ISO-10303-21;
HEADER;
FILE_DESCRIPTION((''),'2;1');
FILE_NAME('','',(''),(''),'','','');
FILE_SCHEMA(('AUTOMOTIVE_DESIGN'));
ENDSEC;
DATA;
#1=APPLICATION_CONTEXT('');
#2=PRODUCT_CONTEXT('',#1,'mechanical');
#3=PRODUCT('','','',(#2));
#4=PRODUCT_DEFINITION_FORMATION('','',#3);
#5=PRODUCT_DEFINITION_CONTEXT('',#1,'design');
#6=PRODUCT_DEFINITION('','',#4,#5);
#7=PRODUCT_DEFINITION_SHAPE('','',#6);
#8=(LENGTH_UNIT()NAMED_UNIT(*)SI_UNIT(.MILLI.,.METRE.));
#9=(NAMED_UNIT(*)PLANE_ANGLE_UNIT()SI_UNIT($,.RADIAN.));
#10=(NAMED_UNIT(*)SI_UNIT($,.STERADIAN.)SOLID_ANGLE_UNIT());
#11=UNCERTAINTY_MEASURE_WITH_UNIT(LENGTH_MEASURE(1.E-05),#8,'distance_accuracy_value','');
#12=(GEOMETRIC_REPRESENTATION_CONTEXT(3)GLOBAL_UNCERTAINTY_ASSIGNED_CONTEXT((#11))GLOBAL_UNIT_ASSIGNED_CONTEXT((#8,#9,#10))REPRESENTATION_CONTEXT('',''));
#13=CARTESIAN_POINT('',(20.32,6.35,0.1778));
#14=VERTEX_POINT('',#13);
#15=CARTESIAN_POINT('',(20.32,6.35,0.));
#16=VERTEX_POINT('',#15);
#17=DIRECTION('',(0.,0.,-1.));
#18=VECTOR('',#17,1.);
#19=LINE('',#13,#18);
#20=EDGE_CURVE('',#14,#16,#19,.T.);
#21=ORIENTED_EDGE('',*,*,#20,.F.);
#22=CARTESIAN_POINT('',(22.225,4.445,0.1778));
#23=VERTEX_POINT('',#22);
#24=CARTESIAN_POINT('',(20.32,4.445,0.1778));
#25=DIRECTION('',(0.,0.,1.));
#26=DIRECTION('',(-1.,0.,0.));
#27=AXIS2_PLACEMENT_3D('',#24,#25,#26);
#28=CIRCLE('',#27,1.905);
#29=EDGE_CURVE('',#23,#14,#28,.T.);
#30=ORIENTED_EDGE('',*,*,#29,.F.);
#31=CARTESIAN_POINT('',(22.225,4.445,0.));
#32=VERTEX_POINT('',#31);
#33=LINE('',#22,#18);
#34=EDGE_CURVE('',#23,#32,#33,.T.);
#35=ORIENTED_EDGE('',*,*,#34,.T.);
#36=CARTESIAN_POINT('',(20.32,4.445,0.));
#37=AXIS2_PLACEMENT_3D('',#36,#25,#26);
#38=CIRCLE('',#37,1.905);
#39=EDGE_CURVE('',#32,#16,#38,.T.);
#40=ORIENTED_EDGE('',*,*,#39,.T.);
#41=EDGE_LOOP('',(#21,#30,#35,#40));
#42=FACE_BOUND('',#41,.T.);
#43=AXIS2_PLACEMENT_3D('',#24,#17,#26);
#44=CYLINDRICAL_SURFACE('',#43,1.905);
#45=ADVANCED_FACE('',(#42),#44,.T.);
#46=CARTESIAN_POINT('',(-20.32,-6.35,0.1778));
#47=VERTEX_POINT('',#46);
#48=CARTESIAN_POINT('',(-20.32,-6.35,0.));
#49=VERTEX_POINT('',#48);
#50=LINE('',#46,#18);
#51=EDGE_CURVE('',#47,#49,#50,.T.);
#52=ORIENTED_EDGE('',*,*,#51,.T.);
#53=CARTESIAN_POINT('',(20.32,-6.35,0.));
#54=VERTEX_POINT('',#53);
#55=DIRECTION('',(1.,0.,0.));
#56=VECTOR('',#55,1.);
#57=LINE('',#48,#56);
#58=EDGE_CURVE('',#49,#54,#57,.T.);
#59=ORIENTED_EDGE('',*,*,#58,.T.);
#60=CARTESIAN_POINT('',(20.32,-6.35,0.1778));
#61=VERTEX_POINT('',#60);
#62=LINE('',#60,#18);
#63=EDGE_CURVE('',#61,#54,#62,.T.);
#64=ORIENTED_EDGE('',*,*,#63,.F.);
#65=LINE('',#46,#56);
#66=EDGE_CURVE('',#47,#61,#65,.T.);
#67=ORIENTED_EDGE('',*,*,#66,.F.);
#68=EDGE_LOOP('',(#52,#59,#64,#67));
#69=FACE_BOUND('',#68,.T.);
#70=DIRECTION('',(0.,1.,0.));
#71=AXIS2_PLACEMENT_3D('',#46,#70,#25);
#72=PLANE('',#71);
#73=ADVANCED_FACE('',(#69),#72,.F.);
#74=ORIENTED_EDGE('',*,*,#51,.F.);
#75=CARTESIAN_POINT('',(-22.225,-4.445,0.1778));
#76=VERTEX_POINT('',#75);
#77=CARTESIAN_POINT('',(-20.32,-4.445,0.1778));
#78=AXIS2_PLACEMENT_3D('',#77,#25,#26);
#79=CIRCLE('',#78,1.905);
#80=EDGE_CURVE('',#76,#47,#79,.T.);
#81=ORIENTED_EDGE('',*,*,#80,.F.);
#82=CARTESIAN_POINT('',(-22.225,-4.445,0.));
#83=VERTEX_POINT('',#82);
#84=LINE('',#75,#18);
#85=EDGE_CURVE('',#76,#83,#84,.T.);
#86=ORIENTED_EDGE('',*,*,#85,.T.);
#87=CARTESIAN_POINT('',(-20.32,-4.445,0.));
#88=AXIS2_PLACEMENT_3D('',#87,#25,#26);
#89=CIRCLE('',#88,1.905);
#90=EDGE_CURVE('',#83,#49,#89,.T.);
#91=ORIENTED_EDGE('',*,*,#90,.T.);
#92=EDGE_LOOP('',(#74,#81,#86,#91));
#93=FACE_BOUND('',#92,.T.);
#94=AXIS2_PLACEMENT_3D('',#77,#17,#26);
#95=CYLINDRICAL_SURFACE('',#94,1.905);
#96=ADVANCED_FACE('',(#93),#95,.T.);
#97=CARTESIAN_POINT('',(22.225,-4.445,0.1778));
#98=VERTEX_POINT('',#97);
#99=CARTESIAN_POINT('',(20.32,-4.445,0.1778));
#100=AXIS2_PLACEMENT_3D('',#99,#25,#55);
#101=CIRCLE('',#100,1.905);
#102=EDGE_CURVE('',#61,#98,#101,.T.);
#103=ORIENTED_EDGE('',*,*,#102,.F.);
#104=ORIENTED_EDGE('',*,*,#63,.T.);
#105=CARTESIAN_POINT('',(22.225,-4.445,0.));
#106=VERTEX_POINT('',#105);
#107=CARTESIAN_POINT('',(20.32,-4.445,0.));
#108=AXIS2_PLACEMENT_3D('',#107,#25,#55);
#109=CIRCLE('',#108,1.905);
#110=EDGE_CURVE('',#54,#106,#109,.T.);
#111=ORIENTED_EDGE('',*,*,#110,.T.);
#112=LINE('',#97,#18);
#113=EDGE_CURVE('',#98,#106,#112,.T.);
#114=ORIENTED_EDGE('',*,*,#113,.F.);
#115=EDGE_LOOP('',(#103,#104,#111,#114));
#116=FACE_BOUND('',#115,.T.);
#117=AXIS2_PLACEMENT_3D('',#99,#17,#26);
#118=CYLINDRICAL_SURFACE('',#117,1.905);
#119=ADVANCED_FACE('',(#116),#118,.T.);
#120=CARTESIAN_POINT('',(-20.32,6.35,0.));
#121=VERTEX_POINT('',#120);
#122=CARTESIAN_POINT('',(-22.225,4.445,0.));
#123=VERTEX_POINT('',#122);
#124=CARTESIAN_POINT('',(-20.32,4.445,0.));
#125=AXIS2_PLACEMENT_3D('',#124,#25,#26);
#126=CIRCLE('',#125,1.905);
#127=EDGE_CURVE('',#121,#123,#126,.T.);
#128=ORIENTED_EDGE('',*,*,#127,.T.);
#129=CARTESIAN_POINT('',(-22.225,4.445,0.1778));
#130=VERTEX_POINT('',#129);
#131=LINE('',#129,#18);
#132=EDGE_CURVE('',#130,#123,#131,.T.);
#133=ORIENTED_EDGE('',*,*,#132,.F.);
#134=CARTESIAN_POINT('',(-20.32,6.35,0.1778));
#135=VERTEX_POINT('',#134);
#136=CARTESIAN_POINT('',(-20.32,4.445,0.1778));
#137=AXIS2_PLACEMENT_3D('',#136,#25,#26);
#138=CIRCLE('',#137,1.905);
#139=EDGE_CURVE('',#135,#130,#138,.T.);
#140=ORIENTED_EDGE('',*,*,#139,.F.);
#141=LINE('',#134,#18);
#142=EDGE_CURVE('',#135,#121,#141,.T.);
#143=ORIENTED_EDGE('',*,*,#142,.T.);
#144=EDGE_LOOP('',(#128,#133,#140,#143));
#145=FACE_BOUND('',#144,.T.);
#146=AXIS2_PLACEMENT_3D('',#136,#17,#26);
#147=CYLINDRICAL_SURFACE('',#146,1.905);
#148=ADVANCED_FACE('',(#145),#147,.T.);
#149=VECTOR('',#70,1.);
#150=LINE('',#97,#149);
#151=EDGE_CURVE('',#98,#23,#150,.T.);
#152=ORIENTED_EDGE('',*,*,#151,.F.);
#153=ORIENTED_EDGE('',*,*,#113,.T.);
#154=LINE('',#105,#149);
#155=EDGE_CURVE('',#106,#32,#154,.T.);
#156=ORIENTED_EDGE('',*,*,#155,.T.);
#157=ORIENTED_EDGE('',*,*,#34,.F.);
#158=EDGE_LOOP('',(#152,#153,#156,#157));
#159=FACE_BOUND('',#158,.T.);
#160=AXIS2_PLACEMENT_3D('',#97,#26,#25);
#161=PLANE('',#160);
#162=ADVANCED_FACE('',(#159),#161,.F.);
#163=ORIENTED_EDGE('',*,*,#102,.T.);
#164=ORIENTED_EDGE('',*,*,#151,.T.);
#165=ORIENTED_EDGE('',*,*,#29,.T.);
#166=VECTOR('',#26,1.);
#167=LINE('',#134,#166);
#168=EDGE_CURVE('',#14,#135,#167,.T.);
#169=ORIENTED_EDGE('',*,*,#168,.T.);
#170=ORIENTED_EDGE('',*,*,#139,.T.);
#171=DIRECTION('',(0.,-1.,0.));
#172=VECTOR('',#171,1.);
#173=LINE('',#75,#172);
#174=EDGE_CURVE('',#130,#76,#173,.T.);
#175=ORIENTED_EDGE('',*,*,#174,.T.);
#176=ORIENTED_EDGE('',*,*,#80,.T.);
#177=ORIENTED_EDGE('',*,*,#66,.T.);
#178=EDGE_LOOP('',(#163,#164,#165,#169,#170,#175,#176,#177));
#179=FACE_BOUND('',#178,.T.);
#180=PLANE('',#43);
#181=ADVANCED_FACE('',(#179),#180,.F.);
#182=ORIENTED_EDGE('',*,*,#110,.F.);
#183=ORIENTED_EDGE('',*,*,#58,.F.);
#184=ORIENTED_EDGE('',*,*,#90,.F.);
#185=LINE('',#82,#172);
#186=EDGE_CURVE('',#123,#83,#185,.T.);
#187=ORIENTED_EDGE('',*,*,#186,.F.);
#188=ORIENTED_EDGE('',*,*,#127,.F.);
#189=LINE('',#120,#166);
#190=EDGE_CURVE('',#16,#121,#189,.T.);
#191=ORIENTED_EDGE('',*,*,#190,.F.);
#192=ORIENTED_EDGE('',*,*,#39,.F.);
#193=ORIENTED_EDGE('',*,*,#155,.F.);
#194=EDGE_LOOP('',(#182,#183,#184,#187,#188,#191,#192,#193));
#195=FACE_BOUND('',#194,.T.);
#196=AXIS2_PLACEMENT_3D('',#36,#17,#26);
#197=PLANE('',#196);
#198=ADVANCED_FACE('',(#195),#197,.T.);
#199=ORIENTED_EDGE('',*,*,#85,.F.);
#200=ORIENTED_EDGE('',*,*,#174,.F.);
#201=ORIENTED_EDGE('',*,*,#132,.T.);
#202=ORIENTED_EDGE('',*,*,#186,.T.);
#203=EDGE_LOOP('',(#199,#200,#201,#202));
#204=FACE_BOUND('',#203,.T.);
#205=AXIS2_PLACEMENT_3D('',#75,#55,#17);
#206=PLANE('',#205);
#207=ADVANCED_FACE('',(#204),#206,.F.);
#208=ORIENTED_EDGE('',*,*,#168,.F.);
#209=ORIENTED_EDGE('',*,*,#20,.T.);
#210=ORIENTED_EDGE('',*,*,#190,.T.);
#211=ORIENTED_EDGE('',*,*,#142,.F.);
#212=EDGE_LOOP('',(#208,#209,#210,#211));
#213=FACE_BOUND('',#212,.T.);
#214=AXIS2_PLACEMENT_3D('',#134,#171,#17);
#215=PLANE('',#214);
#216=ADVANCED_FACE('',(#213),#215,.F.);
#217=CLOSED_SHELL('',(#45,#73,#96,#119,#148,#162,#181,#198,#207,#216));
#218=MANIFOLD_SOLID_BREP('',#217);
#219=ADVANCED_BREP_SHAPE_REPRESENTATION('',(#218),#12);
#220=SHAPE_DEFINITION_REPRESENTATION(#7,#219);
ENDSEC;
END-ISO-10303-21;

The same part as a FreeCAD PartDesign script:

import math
import FreeCAD as App
import Part
import Sketcher
from FreeCAD import Vector
Q = App.Units.Quantity

doc = App.newDocument("Part")
body = doc.addObject("PartDesign::Body", "Body")

# Sketch on XY plane
sketch1 = doc.addObject("Sketcher::SketchObject", "Sketch")
body.addObject(sketch1)
sketch1.AttachmentSupport = (doc.XY_Plane, [""])
sketch1.MapMode = "FlatFace"
sketch1.addGeometry(Part.LineSegment(Vector(-20.3, -6.3, 0), Vector(20.3, -6.3, 0)), False)
sketch1.addGeometry(Part.ArcOfCircle(Part.Circle(Vector(20.3, -4.4, 0), Vector(0, 0, 1), 1.9), math.radians(-90), math.radians(0)), False)
sketch1.addGeometry(Part.LineSegment(Vector(22.2, -4.4, 0), Vector(22.2, 4.4, 0)), False)
sketch1.addGeometry(Part.ArcOfCircle(Part.Circle(Vector(20.3, 4.4, 0), Vector(0, 0, 1), 1.9), math.radians(0), math.radians(90)), False)
sketch1.addGeometry(Part.LineSegment(Vector(20.3, 6.3, 0), Vector(-20.3, 6.3, 0)), False)
sketch1.addGeometry(Part.ArcOfCircle(Part.Circle(Vector(-20.3, 4.4, 0), Vector(0, 0, 1), 1.9), math.radians(90), math.radians(180)), False)
sketch1.addGeometry(Part.LineSegment(Vector(-22.2, 4.4, 0), Vector(-22.2, -4.4, 0)), False)
sketch1.addGeometry(Part.ArcOfCircle(Part.Circle(Vector(-20.3, -4.4, 0), Vector(0, 0, 1), 1.9), math.radians(-180), math.radians(-90)), False)
sketch1.addConstraint(Sketcher.Constraint("Tangent", 0, 2, 1, 1))
sketch1.addConstraint(Sketcher.Constraint("Tangent", 1, 2, 2, 1))
sketch1.addConstraint(Sketcher.Constraint("Tangent", 2, 2, 3, 1))
sketch1.addConstraint(Sketcher.Constraint("Tangent", 3, 2, 4, 1))
sketch1.addConstraint(Sketcher.Constraint("Tangent", 4, 2, 5, 1))
sketch1.addConstraint(Sketcher.Constraint("Tangent", 5, 2, 6, 1))
sketch1.addConstraint(Sketcher.Constraint("Tangent", 6, 2, 7, 1))
sketch1.addConstraint(Sketcher.Constraint("Tangent", 7, 2, 0, 1))
sketch1.addConstraint(Sketcher.Constraint("Horizontal", 0))
sketch1.addConstraint(Sketcher.Constraint("Vertical", 2))
sketch1.addConstraint(Sketcher.Constraint("Horizontal", 4))
sketch1.addConstraint(Sketcher.Constraint("Vertical", 6))
sketch1.addConstraint(Sketcher.Constraint("Equal", 1, 3))
sketch1.addConstraint(Sketcher.Constraint("Equal", 3, 5))
sketch1.addConstraint(Sketcher.Constraint("Equal", 5, 7))
sketch1.addConstraint(Sketcher.Constraint("Symmetric", 1, 3, 5, 3, -1, 1))
sketch1.addConstraint(Sketcher.Constraint("DistanceX", 0, 1, 0, 2, Q("1.6 in")))
sketch1.addConstraint(Sketcher.Constraint("Radius", 1, Q("0.075 in")))
sketch1.addConstraint(Sketcher.Constraint("DistanceY", 2, 1, 2, 2, Q("0.35 in")))
pad1 = doc.addObject("PartDesign::Pad", "Pad")
body.addObject(pad1)
pad1.Profile = sketch1
pad1.Length = Q("0.007 in")

doc.recompute()
